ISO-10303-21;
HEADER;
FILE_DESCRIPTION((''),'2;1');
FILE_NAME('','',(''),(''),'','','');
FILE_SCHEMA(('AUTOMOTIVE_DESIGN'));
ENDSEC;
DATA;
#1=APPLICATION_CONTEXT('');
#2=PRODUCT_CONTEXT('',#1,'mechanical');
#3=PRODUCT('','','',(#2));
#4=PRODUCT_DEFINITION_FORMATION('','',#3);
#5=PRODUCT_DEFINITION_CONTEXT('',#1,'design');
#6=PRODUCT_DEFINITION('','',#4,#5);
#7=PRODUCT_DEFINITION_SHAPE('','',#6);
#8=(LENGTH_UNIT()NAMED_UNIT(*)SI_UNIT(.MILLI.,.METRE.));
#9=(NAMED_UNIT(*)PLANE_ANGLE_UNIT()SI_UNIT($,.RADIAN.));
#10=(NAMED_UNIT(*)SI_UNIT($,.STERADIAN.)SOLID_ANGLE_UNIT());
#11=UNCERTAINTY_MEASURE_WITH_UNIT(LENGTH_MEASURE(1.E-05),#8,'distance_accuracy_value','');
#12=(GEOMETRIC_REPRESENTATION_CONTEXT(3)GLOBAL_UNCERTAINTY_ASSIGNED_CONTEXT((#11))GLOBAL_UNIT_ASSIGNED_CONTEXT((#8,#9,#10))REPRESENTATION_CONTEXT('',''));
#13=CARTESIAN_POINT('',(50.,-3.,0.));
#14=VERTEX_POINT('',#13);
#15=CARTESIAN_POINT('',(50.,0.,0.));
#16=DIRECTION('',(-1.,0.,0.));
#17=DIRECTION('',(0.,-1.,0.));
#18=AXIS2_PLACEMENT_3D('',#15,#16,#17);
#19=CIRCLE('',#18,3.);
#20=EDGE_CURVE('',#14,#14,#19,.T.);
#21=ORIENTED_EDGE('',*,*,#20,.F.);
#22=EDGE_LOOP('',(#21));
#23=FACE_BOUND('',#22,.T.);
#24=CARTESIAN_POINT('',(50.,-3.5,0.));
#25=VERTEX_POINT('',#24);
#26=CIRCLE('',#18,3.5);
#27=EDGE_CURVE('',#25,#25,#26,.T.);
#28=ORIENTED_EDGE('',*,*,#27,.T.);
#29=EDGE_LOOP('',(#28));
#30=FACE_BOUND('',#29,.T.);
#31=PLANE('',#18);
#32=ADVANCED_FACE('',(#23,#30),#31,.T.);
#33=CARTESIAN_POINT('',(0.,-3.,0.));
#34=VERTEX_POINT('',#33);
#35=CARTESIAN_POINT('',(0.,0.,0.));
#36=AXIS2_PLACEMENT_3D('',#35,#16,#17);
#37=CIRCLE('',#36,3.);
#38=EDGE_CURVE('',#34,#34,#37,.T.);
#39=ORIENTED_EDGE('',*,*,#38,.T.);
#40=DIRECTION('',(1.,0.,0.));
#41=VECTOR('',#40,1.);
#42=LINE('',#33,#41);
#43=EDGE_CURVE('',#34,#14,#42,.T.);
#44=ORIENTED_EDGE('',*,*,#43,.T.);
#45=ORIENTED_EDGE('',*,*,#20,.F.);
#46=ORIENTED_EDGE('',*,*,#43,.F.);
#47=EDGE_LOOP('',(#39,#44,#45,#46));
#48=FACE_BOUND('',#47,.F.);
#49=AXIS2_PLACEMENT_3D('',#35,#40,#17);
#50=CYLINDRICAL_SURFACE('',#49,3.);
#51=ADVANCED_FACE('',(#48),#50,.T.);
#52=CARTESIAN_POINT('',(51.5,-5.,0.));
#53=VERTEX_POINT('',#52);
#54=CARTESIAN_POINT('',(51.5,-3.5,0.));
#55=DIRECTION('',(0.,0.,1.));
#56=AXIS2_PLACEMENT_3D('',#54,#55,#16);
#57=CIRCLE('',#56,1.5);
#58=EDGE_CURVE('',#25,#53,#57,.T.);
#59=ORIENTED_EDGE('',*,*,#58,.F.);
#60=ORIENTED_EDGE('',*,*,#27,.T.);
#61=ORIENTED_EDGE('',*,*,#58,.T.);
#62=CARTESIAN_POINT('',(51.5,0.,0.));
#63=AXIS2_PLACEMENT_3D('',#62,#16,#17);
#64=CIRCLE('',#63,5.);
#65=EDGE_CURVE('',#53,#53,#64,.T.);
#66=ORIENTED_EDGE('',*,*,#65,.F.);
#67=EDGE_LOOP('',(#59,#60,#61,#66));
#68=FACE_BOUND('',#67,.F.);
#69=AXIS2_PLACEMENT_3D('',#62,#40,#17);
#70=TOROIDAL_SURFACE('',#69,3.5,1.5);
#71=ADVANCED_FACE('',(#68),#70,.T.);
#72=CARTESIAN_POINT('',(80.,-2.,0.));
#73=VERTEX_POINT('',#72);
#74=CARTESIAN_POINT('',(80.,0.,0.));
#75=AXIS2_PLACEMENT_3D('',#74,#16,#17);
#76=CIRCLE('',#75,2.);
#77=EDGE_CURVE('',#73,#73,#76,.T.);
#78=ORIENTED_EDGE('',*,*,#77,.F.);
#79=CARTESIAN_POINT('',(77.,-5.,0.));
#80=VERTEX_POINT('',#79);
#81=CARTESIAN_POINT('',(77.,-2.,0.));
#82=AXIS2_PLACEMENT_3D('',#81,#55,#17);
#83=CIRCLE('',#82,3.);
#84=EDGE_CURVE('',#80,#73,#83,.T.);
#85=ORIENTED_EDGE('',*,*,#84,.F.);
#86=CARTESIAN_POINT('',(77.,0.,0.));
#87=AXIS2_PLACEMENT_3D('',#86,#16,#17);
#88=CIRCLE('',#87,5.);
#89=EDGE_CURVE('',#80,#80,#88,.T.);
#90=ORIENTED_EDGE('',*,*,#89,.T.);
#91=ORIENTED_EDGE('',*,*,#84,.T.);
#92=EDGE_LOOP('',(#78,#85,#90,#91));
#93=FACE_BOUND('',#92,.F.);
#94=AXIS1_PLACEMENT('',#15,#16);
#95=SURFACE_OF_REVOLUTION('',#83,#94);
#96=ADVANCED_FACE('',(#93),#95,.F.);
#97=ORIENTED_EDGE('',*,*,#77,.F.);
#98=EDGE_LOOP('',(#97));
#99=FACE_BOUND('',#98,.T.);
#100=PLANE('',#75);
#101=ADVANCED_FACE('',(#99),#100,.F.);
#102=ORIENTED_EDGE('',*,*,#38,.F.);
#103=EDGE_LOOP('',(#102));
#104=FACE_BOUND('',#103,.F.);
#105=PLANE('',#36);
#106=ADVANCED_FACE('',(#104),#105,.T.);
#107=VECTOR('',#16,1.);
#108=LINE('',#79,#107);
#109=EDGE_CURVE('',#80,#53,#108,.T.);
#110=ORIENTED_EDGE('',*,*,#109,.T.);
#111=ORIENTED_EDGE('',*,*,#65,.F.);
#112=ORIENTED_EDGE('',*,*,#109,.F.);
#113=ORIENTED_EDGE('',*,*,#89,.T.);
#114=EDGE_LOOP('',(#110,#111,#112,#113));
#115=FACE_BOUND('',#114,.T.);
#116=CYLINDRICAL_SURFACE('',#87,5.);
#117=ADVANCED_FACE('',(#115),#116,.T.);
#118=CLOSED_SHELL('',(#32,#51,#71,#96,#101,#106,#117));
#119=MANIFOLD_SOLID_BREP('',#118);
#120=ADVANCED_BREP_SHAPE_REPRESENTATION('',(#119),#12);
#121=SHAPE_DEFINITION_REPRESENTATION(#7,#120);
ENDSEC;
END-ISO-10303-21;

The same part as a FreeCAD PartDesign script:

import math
import FreeCAD as App
import Part
import Sketcher
from FreeCAD import Vector

doc = App.newDocument("Part")
body = doc.addObject("PartDesign::Body", "Body")

# Sketch on XY plane
sketch1 = body.newObject("Sketcher::SketchObject", "Sketch")
sketch1.AttachmentSupport = (doc.getObject("XY_Plane"), [""])
sketch1.MapMode = "FlatFace"
sketch1.addGeometry([
    Part.LineSegment(Vector(0, 0, 0), Vector(0, -3, 0)),  # 0
    Part.LineSegment(Vector(0, -3, 0), Vector(50, -3, 0)),  # 1
    Part.LineSegment(Vector(50, -3, 0), Vector(50, -3.5, 0)),  # 2
    Part.ArcOfCircle(Part.Circle(Vector(51.5, -3.5, 0), Vector(0, 0, 1), 1.5), math.radians(180), math.radians(270)),  # 3
    Part.LineSegment(Vector(51.5, -5, 0), Vector(77, -5, 0)),  # 4
    Part.ArcOfCircle(Part.Circle(Vector(77, -2, 0), Vector(0, 0, 1), 3), math.radians(-90), math.radians(0)),  # 5
    Part.LineSegment(Vector(80, -2, 0), Vector(80, 0, 0)),  # 6
    Part.LineSegment(Vector(80, 0, 0), Vector(0, 0, 0)),  # 7
], False)
sketch1.addConstraint([
    Sketcher.Constraint("Coincident", 0, 2, 1, 1),
    Sketcher.Constraint("Coincident", 1, 2, 2, 1),
    Sketcher.Constraint("Tangent", 2, 2, 3, 1),
    Sketcher.Constraint("Tangent", 3, 2, 4, 1),
    Sketcher.Constraint("Tangent", 4, 2, 5, 1),
    Sketcher.Constraint("Tangent", 5, 2, 6, 1),
    Sketcher.Constraint("Coincident", 6, 2, 7, 1),
    Sketcher.Constraint("Coincident", 7, 2, 0, 1),
    Sketcher.Constraint("Vertical", 0),
    Sketcher.Constraint("Horizontal", 1),
    Sketcher.Constraint("Vertical", 2),
    Sketcher.Constraint("Horizontal", 4),
    Sketcher.Constraint("Vertical", 6),
    Sketcher.Constraint("Horizontal", 7),
    Sketcher.Constraint("Coincident", 7, 2, -1, 1),
    Sketcher.Constraint("Radius", 5, 3.0),
    Sketcher.Constraint("Radius", 3, 1.5),
    Sketcher.Constraint("DistanceX", 1, 1, 1, 2, 50.0),
    Sketcher.Constraint("DistanceY", 0, 2, 0, 1, 3.0),
    Sketcher.Constraint("DistanceY", 3, 2, -1, 1, 5.0),
    Sketcher.Constraint("DistanceX", 1, 2, 5, 2, 30.0),
])
revolution = body.newObject("PartDesign::Revolution", "Revolution")
revolution.Profile = sketch1
revolution.ReferenceAxis = (sketch1, ["H_Axis"])
revolution.Angle = 360

doc.recompute()
